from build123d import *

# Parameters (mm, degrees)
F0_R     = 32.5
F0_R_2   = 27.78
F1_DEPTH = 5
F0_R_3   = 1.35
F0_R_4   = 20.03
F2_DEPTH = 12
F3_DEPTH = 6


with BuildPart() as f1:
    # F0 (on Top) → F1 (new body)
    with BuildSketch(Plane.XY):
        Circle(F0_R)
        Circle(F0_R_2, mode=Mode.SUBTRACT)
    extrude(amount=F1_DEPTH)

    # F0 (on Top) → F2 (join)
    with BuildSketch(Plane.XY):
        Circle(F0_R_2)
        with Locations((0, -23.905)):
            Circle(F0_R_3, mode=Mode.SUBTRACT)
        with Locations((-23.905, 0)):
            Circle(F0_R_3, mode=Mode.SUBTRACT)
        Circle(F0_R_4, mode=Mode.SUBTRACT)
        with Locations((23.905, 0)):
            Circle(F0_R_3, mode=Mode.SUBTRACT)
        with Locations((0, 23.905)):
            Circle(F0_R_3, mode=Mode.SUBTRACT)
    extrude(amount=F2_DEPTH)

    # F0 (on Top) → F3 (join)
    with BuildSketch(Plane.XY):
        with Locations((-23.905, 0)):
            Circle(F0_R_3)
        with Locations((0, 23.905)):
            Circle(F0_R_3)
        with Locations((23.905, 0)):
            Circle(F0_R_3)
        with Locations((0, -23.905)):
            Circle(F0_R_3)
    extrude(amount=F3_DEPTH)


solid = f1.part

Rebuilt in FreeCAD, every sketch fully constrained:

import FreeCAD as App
import Part
import Sketcher

V = App.Vector
Q = App.Units.Quantity

doc = App.newDocument("Part")
body = doc.addObject("PartDesign::Body", "Body")

# Sketch on XY plane
sketch1 = doc.addObject("Sketcher::SketchObject", "Sketch")
body.addObject(sketch1)
sketch1.AttachmentSupport = (doc.XY_Plane, [""])
sketch1.MapMode = "FlatFace"
sketch1.addGeometry([
    Part.Circle(V(0, 0, 0), V(0, 0, 1), 32),
    Part.Circle(V(0, 0, 0), V(0, 0, 1), 28),
], False)
sketch1.addConstraint([
    Sketcher.Constraint("Coincident", 0, 3, -1, 1),
    Sketcher.Constraint("Coincident", 1, 3, -1, 1),
    Sketcher.Constraint("Diameter", 0, Q("65 mm")),
    Sketcher.Constraint("Diameter", 1, Q("55.56 mm")),
])
pad1 = doc.addObject("PartDesign::Pad", "Pad")
body.addObject(pad1)
pad1.Profile = sketch1
pad1.Length = 5

# Sketch on XY plane
sketch2 = doc.addObject("Sketcher::SketchObject", "Sketch001")
body.addObject(sketch2)
sketch2.AttachmentSupport = (doc.XY_Plane, [""])
sketch2.MapMode = "FlatFace"
sketch2.addGeometry([
    Part.Circle(V(0, 0, 0), V(0, 0, 1), 27.8),  # 0
    Part.Circle(V(0, -23.9, 0), V(0, 0, 1), 1.4),  # 1
    Part.Circle(V(-23.9, 0, 0), V(0, 0, 1), 1.4),  # 2
    Part.Circle(V(0, 0, 0), V(0, 0, 1), 20),  # 3
    Part.Circle(V(23.9, 0, 0), V(0, 0, 1), 1.4),  # 4
    Part.Circle(V(0, 23.9, 0), V(0, 0, 1), 1.4),  # 5
], False)
sketch2.addConstraint([
    Sketcher.Constraint("Coincident", 0, 3, -1, 1),
    Sketcher.Constraint("Coincident", 3, 3, -1, 1),
    Sketcher.Constraint("Equal", 1, 2),
    Sketcher.Constraint("Equal", 2, 4),
    Sketcher.Constraint("Equal", 4, 5),
    Sketcher.Constraint("Symmetric", 2, 3, 4, 3, -1, 1),
    Sketcher.Constraint("Symmetric", 1, 3, 5, 3, -1, 1),
    Sketcher.Constraint("PointOnObject", 1, 3, -2),
    Sketcher.Constraint("PointOnObject", 2, 3, -1),
    Sketcher.Constraint("Diameter", 1, Q("2.7 mm")),
    Sketcher.Constraint("Diameter", 0, Q("55.56 mm")),
    Sketcher.Constraint("Diameter", 3, Q("40.06 mm")),
    Sketcher.Constraint("DistanceX", 2, 3, 4, 3, Q("47.81 mm")),
    Sketcher.Constraint("DistanceY", 1, 3, 5, 3, Q("47.81 mm")),
])
pad2 = doc.addObject("PartDesign::Pad", "Pad001")
body.addObject(pad2)
pad2.Profile = sketch2
pad2.Length = 12

# Sketch on XY plane
sketch3 = doc.addObject("Sketcher::SketchObject", "Sketch002")
body.addObject(sketch3)
sketch3.AttachmentSupport = (doc.XY_Plane, [""])
sketch3.MapMode = "FlatFace"
sketch3.addGeometry([
    Part.Circle(V(-23.9, 0, 0), V(0, 0, 1), 1.4),
    Part.Circle(V(0, 23.9, 0), V(0, 0, 1), 1.4),
    Part.Circle(V(23.9, 0, 0), V(0, 0, 1), 1.4),
    Part.Circle(V(0, -23.9, 0), V(0, 0, 1), 1.4),
], False)
sketch3.addConstraint([
    Sketcher.Constraint("Equal", 0, 1),
    Sketcher.Constraint("Equal", 1, 2),
    Sketcher.Constraint("Equal", 2, 3),
    Sketcher.Constraint("Symmetric", 0, 3, 2, 3, -1, 1),
    Sketcher.Constraint("Symmetric", 1, 3, 3, 3, -1, 1),
    Sketcher.Constraint("PointOnObject", 0, 3, -1),
    Sketcher.Constraint("PointOnObject", 1, 3, -2),
    Sketcher.Constraint("Diameter", 0, Q("2.7 mm")),
    Sketcher.Constraint("DistanceX", 0, 3, 2, 3, Q("47.81 mm")),
    Sketcher.Constraint("DistanceY", 3, 3, 1, 3, Q("47.81 mm")),
])
pad3 = doc.addObject("PartDesign::Pad", "Pad002")
body.addObject(pad3)
pad3.Profile = sketch3
pad3.Length = 6

doc.recompute()
